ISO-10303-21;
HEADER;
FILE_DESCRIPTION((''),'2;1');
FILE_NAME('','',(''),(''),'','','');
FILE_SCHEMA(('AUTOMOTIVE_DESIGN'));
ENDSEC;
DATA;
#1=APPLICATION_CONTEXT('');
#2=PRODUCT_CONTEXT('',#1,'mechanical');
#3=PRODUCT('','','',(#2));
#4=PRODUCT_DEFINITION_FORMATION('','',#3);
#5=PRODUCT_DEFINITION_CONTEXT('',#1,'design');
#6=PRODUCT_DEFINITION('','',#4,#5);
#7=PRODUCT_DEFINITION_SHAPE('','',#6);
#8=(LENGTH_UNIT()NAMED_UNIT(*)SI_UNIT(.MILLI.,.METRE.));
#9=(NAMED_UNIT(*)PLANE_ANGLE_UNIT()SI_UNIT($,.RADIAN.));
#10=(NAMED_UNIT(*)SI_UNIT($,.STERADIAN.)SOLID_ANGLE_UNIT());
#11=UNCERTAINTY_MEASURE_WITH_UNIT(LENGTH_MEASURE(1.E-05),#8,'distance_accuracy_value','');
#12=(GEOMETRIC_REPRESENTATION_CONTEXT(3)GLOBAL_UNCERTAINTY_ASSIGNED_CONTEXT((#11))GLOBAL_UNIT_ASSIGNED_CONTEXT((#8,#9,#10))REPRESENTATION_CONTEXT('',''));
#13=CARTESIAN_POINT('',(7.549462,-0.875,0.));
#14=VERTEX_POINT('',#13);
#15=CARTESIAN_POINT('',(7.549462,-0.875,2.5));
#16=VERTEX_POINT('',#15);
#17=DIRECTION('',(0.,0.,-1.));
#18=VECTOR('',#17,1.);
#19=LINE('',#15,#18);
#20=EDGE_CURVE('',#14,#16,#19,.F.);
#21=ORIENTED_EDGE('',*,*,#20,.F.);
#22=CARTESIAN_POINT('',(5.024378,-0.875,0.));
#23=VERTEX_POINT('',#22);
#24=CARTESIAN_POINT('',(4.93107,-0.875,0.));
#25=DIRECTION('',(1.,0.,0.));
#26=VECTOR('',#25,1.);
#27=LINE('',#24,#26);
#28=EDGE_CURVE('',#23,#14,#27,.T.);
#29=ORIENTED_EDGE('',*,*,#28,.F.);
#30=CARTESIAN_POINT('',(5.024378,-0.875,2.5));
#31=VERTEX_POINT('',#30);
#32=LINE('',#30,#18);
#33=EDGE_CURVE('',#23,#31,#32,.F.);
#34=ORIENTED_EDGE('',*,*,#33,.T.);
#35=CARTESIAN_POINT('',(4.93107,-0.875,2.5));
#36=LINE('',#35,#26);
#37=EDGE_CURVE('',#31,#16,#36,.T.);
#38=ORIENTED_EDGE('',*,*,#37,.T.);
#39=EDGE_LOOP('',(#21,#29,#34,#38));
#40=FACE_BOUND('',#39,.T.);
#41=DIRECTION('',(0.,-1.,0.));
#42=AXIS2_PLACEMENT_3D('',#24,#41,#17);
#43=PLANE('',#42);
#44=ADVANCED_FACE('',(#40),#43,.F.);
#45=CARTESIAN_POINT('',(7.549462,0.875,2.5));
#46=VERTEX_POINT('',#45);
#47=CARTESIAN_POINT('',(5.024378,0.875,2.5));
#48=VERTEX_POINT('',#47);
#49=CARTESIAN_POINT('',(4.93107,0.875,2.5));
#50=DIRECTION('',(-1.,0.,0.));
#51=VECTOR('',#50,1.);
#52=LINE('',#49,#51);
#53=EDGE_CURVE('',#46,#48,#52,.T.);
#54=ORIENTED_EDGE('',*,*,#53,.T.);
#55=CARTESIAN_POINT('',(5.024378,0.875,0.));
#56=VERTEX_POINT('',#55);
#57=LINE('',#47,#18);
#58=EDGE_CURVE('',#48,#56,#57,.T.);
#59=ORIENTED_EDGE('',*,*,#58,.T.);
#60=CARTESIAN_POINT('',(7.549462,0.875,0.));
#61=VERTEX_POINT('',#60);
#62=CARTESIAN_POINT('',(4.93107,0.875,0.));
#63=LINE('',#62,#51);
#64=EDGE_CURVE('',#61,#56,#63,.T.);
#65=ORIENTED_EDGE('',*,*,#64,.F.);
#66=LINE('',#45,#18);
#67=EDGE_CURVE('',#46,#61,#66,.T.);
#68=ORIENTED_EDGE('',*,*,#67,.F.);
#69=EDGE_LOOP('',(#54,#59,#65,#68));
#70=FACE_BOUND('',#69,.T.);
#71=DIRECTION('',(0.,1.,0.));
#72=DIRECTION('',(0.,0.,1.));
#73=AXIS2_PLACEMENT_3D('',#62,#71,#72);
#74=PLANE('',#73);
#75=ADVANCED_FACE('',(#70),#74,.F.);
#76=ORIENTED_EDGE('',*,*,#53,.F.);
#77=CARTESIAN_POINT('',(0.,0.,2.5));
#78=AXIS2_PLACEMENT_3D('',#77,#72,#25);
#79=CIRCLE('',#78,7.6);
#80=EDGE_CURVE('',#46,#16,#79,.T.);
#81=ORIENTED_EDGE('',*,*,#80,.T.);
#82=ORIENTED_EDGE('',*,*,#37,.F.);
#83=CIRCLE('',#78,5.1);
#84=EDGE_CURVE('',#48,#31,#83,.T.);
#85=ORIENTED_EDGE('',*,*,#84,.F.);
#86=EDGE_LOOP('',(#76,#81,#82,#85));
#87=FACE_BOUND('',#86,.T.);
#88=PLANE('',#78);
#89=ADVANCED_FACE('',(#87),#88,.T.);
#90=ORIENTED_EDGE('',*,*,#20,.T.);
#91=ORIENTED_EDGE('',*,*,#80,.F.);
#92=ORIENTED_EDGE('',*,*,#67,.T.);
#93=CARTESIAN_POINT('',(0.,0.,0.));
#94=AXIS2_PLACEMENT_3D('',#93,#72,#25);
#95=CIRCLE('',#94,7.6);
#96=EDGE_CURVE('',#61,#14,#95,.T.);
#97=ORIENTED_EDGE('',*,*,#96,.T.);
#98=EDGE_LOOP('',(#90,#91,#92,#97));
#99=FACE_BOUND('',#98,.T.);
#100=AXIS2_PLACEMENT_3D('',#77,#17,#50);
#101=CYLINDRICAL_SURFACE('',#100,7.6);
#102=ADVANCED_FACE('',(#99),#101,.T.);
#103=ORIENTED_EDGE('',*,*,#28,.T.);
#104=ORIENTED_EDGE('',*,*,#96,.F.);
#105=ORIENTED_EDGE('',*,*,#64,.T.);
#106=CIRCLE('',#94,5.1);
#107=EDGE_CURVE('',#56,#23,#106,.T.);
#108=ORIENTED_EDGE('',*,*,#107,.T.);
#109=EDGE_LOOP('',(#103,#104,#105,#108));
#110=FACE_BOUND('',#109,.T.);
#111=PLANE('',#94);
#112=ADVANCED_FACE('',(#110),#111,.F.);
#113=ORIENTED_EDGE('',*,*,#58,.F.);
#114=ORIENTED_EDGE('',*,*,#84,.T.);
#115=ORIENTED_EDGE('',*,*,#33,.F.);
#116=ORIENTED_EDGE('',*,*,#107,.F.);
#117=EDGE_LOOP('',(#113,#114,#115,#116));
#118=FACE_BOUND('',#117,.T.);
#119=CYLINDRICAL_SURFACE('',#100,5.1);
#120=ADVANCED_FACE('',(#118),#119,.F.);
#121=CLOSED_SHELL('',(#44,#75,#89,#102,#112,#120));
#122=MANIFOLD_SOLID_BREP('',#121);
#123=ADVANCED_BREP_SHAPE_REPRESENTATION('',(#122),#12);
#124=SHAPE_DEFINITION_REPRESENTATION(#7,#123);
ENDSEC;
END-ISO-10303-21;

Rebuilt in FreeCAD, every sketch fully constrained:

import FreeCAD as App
import Part
import Sketcher
from FreeCAD import Vector
Q = App.Units.Quantity


def add_polygon(sketch, points):
    """Adds a closed chain of lines whose ends are joined by coincident constraints."""
    first, n = sketch.GeometryCount, len(points)
    for a, b in zip(points, points[1:] + points[:1]):
        sketch.addGeometry(Part.LineSegment(App.Vector(*a, 0), App.Vector(*b, 0)), False)
    for i in range(n):
        sketch.addConstraint(Sketcher.Constraint("Coincident", first + i, 2, first + (i + 1) % n, 1))

doc = App.newDocument("Part")
body = doc.addObject("PartDesign::Body", "Body")

sketch1 = body.newObject("Sketcher::SketchObject", "Sketch")
sketch1.AttachmentSupport = (doc.getObject("XY_Plane"), [""])
sketch1.MapMode = "FlatFace"
sketch1.addGeometry(Part.Circle(Vector(0, 0, 0), Vector(0, 0, 1), 8), False)
sketch1.addGeometry(Part.Circle(Vector(0, 0, 0), Vector(0, 0, 1), 5), False)
sketch1.addConstraint(Sketcher.Constraint("Coincident", 0, 3, -1, 1))
sketch1.addConstraint(Sketcher.Constraint("Coincident", 1, 3, -1, 1))
sketch1.addConstraint(Sketcher.Constraint("Diameter", 0, Q("15.2 mm")))
sketch1.addConstraint(Sketcher.Constraint("Diameter", 1, Q("10.2 mm")))
pad1 = body.newObject("PartDesign::Pad", "Pad")
pad1.Profile = sketch1
pad1.Length = 2.5

sketch2 = body.newObject("Sketcher::SketchObject", "Sketch001")
sketch2.AttachmentSupport = (doc.getObject("XY_Plane"), [""])
sketch2.MapMode = "FlatFace"
sketch2.AttachmentOffset = App.Placement(Vector(0, 0, 2.5), App.Rotation())
add_polygon(sketch2, [(4.9, 0.9), (4.9, -0.9), (7.8, -0.9), (7.8, 0.9)])
sketch2.addConstraint(Sketcher.Constraint("Vertical", 0))
sketch2.addConstraint(Sketcher.Constraint("Horizontal", 1))
sketch2.addConstraint(Sketcher.Constraint("Vertical", 2))
sketch2.addConstraint(Sketcher.Constraint("Horizontal", 3))
sketch2.addConstraint(Sketcher.Constraint("DistanceY", 0, 2, 0, 1, Q("1.75 mm")))
sketch2.addConstraint(Sketcher.Constraint("DistanceY", 0, 2, -1, 1, Q("0.875 mm")))
sketch2.addConstraint(Sketcher.Constraint("DistanceX", 1, 1, 1, 2, Q("2.905504 mm")))
sketch2.addConstraint(Sketcher.Constraint("DistanceX", -1, 1, 0, 2, Q("4.93107 mm")))
pocket1 = body.newObject("PartDesign::Pocket", "Pocket")
pocket1.Profile = sketch2
pocket1.Type = "ThroughAll"

doc.recompute()
